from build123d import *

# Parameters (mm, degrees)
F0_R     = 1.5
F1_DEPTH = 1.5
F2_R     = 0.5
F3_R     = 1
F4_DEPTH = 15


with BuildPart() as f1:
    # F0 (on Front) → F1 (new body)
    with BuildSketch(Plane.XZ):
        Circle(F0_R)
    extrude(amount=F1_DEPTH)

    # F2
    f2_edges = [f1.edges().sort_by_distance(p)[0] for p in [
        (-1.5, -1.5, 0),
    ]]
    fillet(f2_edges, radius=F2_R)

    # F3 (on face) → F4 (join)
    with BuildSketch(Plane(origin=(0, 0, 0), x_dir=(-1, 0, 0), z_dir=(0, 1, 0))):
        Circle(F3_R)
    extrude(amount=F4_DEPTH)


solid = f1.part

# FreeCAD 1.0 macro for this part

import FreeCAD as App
import Part
import Sketcher

V = App.Vector
Q = App.Units.Quantity


def edges_at(feature, points):
    """Names of the edges that pass closest to the given points."""
    edges = feature.Shape.Edges
    near = lambda p: min(range(len(edges)), key=lambda i: edges[i].distToShape(Part.Vertex(*p))[0])
    return sorted({f"Edge{near(p) + 1}" for p in points})

doc = App.newDocument("Part")
params = doc.addObject("Spreadsheet::Sheet", "Params")
for row, (alias, value) in enumerate([
    ("sketch1_diameter", "3 mm"),
    ("pad1_length", "1.5 mm"),
    ("fillet_radius", "0.5 mm"),
    ("sketch2_diameter", "2 mm"),
    ("pad2_length", "15 mm"),
], start=1):
    params.set(f"A{row}", alias)
    params.set(f"B{row}", "=" + value)
    params.setAlias(f"B{row}", alias)

body = doc.addObject("PartDesign::Body", "Body")

sketch1 = body.newObject("Sketcher::SketchObject", "Sketch")
sketch1.AttachmentSupport = (doc.getObject("XZ_Plane"), [""])
sketch1.MapMode = "FlatFace"
sketch1.addGeometry(Part.Circle(V(0, 0, 0), V(0, 0, 1), 1.5), False)
sketch1.addConstraint([
    Sketcher.Constraint("Coincident", 0, 3, -1, 1),
    Sketcher.Constraint("Diameter", 0, Q("3 mm")),
])
sketch1.setExpression("Constraints[1]", "Params.sketch1_diameter")
pad1 = body.newObject("PartDesign::Pad", "Pad")
pad1.Profile = sketch1
pad1.setExpression("Length", "Params.pad1_length")
doc.recompute()

fillet = body.newObject("PartDesign::Fillet", "Fillet")
fillet.Base = (pad1, edges_at(pad1, [(-1.5, -1.5, 0)]))
fillet.setExpression("Radius", "Params.fillet_radius")

sketch2 = body.newObject("Sketcher::SketchObject", "Sketch001")
sketch2.AttachmentSupport = (doc.getObject("XZ_Plane"), [""])
sketch2.MapMode = "FlatFace"
sketch2.addGeometry(Part.Circle(V(0, 0, 0), V(0, 0, 1), 1), False)
sketch2.addConstraint([
    Sketcher.Constraint("Coincident", 0, 3, -1, 1),
    Sketcher.Constraint("Diameter", 0, Q("2 mm")),
])
sketch2.setExpression("Constraints[1]", "Params.sketch2_diameter")
pad2 = body.newObject("PartDesign::Pad", "Pad001")
pad2.Profile = sketch2
pad2.setExpression("Length", "Params.pad2_length")
pad2.Reversed = True

doc.recompute()
